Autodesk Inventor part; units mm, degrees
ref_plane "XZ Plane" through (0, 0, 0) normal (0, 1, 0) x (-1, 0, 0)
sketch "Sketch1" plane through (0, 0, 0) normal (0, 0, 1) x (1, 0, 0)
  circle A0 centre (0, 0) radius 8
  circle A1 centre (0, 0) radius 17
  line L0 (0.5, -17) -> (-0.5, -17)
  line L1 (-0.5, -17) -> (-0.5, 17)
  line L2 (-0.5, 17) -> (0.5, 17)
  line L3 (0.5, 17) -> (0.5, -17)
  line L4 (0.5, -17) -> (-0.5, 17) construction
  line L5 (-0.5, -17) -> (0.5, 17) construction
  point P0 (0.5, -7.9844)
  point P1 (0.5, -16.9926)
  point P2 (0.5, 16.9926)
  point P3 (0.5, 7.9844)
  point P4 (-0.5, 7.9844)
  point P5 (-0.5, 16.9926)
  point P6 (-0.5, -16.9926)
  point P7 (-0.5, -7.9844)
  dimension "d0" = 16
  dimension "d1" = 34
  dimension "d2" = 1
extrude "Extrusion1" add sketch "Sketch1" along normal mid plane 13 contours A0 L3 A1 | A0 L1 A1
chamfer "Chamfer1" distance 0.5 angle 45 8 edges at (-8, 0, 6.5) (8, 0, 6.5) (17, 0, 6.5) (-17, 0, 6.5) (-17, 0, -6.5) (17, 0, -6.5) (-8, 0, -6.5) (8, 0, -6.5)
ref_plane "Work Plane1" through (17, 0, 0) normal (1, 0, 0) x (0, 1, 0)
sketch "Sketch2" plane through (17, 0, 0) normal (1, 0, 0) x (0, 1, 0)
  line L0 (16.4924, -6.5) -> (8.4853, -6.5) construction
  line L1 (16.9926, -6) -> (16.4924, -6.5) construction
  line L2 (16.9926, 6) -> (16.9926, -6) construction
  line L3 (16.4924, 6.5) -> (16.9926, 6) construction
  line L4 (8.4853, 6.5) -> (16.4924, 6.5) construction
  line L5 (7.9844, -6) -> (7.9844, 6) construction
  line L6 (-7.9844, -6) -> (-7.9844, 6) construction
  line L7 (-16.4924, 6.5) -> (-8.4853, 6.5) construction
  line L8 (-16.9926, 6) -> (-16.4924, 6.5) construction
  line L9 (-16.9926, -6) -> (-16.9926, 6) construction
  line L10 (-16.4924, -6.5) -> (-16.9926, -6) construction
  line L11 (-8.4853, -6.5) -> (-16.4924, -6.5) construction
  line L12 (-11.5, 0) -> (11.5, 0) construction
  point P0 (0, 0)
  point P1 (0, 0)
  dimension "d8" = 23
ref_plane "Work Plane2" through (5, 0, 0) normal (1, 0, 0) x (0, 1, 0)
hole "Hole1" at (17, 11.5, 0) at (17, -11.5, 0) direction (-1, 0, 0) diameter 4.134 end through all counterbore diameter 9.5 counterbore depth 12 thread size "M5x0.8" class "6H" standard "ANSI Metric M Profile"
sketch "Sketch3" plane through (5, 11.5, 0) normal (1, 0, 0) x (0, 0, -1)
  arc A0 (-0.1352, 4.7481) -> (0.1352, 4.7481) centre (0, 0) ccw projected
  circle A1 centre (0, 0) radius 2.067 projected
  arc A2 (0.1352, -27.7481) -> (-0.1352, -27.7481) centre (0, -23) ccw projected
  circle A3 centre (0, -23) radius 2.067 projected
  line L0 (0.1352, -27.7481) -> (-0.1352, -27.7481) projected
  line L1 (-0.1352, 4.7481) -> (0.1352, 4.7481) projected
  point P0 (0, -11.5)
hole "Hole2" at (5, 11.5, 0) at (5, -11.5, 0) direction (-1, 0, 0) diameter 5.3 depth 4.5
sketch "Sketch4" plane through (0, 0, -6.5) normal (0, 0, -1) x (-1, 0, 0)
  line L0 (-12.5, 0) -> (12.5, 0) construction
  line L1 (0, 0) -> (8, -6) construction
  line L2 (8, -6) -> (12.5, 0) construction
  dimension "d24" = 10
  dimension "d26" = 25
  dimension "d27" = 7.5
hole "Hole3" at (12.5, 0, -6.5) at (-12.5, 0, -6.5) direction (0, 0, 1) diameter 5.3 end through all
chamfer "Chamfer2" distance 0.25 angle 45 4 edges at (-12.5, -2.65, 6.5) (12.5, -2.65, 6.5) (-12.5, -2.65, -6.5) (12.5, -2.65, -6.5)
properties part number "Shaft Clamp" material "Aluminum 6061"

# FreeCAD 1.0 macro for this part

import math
import FreeCAD as App
import Part
import Sketcher


def edges_at(feature, points):
    """Names of the edges that pass closest to the given points."""
    edges = feature.Shape.Edges
    near = lambda p: min(range(len(edges)), key=lambda i: edges[i].distToShape(Part.Vertex(*p))[0])
    return sorted({f"Edge{near(p) + 1}" for p in points})

doc = App.newDocument("Part")
params = doc.addObject("Spreadsheet::Sheet", "Params")
for row, (alias, value) in enumerate([
    ("sketch1_radius", "8 mm"),
    ("sketch1_radius2", "17 mm"),
    ("pad1_length", "13 mm"),
    ("chamfer_size", "0.5 mm"),
    ("hole_diameter", "4.134 mm"),
    ("hole_cbore_diameter", "9.5 mm"),
    ("hole_cbore_depth", "12 mm"),
    ("sketch3_diameter", "5.3 mm"),
    ("hole2_diameter", "5.3 mm"),
    ("hole2_depth", "4.5 mm"),
    ("sketch4_diameter", "5.3 mm"),
    ("hole3_diameter", "5.3 mm"),
    ("chamfer2_size", "0.25 mm"),
], start=1):
    params.set(f"A{row}", alias)
    params.set(f"B{row}", "=" + value)
    params.setAlias(f"B{row}", alias)

body = doc.addObject("PartDesign::Body", "Body")
body.AllowCompound = True

sketch1 = doc.addObject("Sketcher::SketchObject", "Sketch")
body.addObject(sketch1)
sketch1.AttachmentSupport = (doc.XY_Plane, [""])
sketch1.MapMode = "FlatFace"
sketch1.addGeometry([
    Part.ArcOfCircle(Part.Circle(App.Vector(0, 0, 0), App.Vector(0, 0, 1), 8), math.radians(-86), math.radians(86)),
    Part.LineSegment(App.Vector(0, -8, 0), App.Vector(0, -17, 0)),
    Part.ArcOfCircle(Part.Circle(App.Vector(0, 0, 0), App.Vector(0, 0, 1), 17), math.radians(-88), math.radians(88)),
    Part.LineSegment(App.Vector(0, 17, 0), App.Vector(0, 8, 0)),
    Part.ArcOfCircle(Part.Circle(App.Vector(0, 0, 0), App.Vector(0, 0, 1), 8), math.radians(94), math.radians(266)),
    Part.LineSegment(App.Vector(0, 8, 0), App.Vector(0, 17, 0)),
    Part.ArcOfCircle(Part.Circle(App.Vector(0, 0, 0), App.Vector(0, 0, 1), 17), math.radians(92), math.radians(268)),
    Part.LineSegment(App.Vector(0, -17, 0), App.Vector(0, -8, 0)),
], False)
sketch1.addConstraint([
    Sketcher.Constraint("Coincident", 0, 1, 1, 1),
    Sketcher.Constraint("Coincident", 1, 2, 2, 1),
    Sketcher.Constraint("Coincident", 2, 2, 3, 1),
    Sketcher.Constraint("Coincident", 3, 2, 0, 2),
    Sketcher.Constraint("Coincident", 4, 1, 5, 1),
    Sketcher.Constraint("Coincident", 5, 2, 6, 1),
    Sketcher.Constraint("Coincident", 6, 2, 7, 1),
    Sketcher.Constraint("Coincident", 7, 2, 4, 2),
    Sketcher.Constraint("Vertical", 1),
    Sketcher.Constraint("Vertical", 3),
    Sketcher.Constraint("Vertical", 5),
    Sketcher.Constraint("Vertical", 7),
    Sketcher.Constraint("Coincident", 0, 3, -1, 1),
    Sketcher.Constraint("Coincident", 2, 3, -1, 1),
    Sketcher.Constraint("Coincident", 4, 3, -1, 1),
    Sketcher.Constraint("Coincident", 6, 3, -1, 1),
    Sketcher.Constraint("Equal", 0, 4),
    Sketcher.Constraint("Equal", 2, 6),
    Sketcher.Constraint("Horizontal", 3, 2, 4, 1),
    Sketcher.Constraint("Horizontal", 1, 2, 6, 2),
    Sketcher.Constraint("Vertical", 1, 2, 2, 2),
    Sketcher.Constraint("Radius", 0, 8.0),
    Sketcher.Constraint("Radius", 2, 17.0),
    Sketcher.Constraint("DistanceX", 4, 1, 3, 2, 1.0),
])
sketch1.setExpression("Constraints[21]", "Params.sketch1_radius")
sketch1.setExpression("Constraints[22]", "Params.sketch1_radius2")
pad1 = doc.addObject("PartDesign::Pad", "Pad")
body.addObject(pad1)
pad1.Profile = sketch1
pad1.setExpression("Length", "Params.pad1_length")
pad1.Midplane = True
doc.recompute()

chamfer = doc.addObject("PartDesign::Chamfer", "Chamfer")
body.addObject(chamfer)
chamfer.Base = (pad1, edges_at(pad1, [
    (-8, 0, 6.5),
    (8, 0, 6.5),
    (17, 0, 6.5),
    (-17, 0, 6.5),
    (-17, 0, -6.5),
    (17, 0, -6.5),
    (-8, 0, -6.5),
    (8, 0, -6.5),
]))
chamfer.setExpression("Size", "Params.chamfer_size")

sketch2 = doc.addObject("Sketcher::SketchObject", "Sketch001")
body.addObject(sketch2)
sketch2.AttachmentSupport = (doc.YZ_Plane, [""])
sketch2.MapMode = "FlatFace"
sketch2.AttachmentOffset = App.Placement(App.Vector(0, 0, 17), App.Rotation())
sketch2.addGeometry([
    Part.Circle(App.Vector(11.5, 0, 0), App.Vector(0, 0, 1), 2.1),
    Part.Circle(App.Vector(-11.5, 0, 0), App.Vector(0, 0, 1), 2.1),
], False)
sketch2.addConstraint([
    Sketcher.Constraint("Equal", 0, 1),
    Sketcher.Constraint("Symmetric", 0, 3, 1, 3, -1, 1),
    Sketcher.Constraint("PointOnObject", 0, 3, -1),
    Sketcher.Constraint("Diameter", 0, 4.134),
    Sketcher.Constraint("DistanceX", 1, 3, 0, 3, 23.0),
])
doc.recompute()
hole = doc.addObject("PartDesign::Hole", "Hole")
body.addObject(hole)
hole.Profile = sketch2
hole.ThreadType = "None"
hole.setExpression("Diameter", "Params.hole_diameter")
hole.DepthType = "ThroughAll"
hole.HoleCutType = "Counterbore"
hole.setExpression("HoleCutDiameter", "Params.hole_cbore_diameter")
hole.setExpression("HoleCutDepth", "Params.hole_cbore_depth")

sketch3 = doc.addObject("Sketcher::SketchObject", "Sketch002")
body.addObject(sketch3)
sketch3.AttachmentSupport = (doc.YZ_Plane, [""])
sketch3.MapMode = "FlatFace"
sketch3.AttachmentOffset = App.Placement(App.Vector(0, 0, 5), App.Rotation())
sketch3.addGeometry([
    Part.Circle(App.Vector(11.5, 0, 0), App.Vector(0, 0, 1), 2.6),
    Part.Circle(App.Vector(-11.5, 0, 0), App.Vector(0, 0, 1), 2.6),
], False)
sketch3.addConstraint([
    Sketcher.Constraint("Equal", 0, 1),
    Sketcher.Constraint("Symmetric", 0, 3, 1, 3, -1, 1),
    Sketcher.Constraint("PointOnObject", 0, 3, -1),
    Sketcher.Constraint("Diameter", 0, 5.3),
    Sketcher.Constraint("DistanceX", 1, 3, 0, 3, 23.0),
])
sketch3.setExpression("Constraints[3]", "Params.sketch3_diameter")
doc.recompute()
hole2 = doc.addObject("PartDesign::Hole", "Hole001")
body.addObject(hole2)
hole2.Profile = sketch3
hole2.ThreadType = "None"
hole2.setExpression("Diameter", "Params.hole2_diameter")
hole2.DepthType = "Dimension"
hole2.setExpression("Depth", "Params.hole2_depth")
hole2.DrillPoint = "Flat"

sketch4 = doc.addObject("Sketcher::SketchObject", "Sketch003")
body.addObject(sketch4)
sketch4.AttachmentSupport = (doc.XY_Plane, [""])
sketch4.MapMode = "FlatFace"
sketch4.AttachmentOffset = App.Placement(App.Vector(0, 0, -6.5), App.Rotation())
sketch4.addGeometry([
    Part.Circle(App.Vector(12.5, 0, 0), App.Vector(0, 0, 1), 2.6),
    Part.Circle(App.Vector(-12.5, 0, 0), App.Vector(0, 0, 1), 2.6),
], False)
sketch4.addConstraint([
    Sketcher.Constraint("Equal", 0, 1),
    Sketcher.Constraint("Symmetric", 0, 3, 1, 3, -1, 1),
    Sketcher.Constraint("PointOnObject", 0, 3, -1),
    Sketcher.Constraint("Diameter", 0, 5.3),
    Sketcher.Constraint("DistanceX", 1, 3, 0, 3, 25.0),
])
sketch4.setExpression("Constraints[3]", "Params.sketch4_diameter")
doc.recompute()
hole3 = doc.addObject("PartDesign::Hole", "Hole002")
body.addObject(hole3)
hole3.Profile = sketch4
hole3.ThreadType = "None"
hole3.setExpression("Diameter", "Params.hole3_diameter")
hole3.DepthType = "ThroughAll"
hole3.Reversed = True
doc.recompute()

chamfer2 = doc.addObject("PartDesign::Chamfer", "Chamfer001")
body.addObject(chamfer2)
chamfer2.Base = (hole3, edges_at(hole3, [
    (-12.5, -2.65, 6.5),
    (12.5, -2.65, 6.5),
    (-12.5, -2.65, -6.5),
    (12.5, -2.65, -6.5),
]))
chamfer2.setExpression("Size", "Params.chamfer2_size")

doc.recompute()
